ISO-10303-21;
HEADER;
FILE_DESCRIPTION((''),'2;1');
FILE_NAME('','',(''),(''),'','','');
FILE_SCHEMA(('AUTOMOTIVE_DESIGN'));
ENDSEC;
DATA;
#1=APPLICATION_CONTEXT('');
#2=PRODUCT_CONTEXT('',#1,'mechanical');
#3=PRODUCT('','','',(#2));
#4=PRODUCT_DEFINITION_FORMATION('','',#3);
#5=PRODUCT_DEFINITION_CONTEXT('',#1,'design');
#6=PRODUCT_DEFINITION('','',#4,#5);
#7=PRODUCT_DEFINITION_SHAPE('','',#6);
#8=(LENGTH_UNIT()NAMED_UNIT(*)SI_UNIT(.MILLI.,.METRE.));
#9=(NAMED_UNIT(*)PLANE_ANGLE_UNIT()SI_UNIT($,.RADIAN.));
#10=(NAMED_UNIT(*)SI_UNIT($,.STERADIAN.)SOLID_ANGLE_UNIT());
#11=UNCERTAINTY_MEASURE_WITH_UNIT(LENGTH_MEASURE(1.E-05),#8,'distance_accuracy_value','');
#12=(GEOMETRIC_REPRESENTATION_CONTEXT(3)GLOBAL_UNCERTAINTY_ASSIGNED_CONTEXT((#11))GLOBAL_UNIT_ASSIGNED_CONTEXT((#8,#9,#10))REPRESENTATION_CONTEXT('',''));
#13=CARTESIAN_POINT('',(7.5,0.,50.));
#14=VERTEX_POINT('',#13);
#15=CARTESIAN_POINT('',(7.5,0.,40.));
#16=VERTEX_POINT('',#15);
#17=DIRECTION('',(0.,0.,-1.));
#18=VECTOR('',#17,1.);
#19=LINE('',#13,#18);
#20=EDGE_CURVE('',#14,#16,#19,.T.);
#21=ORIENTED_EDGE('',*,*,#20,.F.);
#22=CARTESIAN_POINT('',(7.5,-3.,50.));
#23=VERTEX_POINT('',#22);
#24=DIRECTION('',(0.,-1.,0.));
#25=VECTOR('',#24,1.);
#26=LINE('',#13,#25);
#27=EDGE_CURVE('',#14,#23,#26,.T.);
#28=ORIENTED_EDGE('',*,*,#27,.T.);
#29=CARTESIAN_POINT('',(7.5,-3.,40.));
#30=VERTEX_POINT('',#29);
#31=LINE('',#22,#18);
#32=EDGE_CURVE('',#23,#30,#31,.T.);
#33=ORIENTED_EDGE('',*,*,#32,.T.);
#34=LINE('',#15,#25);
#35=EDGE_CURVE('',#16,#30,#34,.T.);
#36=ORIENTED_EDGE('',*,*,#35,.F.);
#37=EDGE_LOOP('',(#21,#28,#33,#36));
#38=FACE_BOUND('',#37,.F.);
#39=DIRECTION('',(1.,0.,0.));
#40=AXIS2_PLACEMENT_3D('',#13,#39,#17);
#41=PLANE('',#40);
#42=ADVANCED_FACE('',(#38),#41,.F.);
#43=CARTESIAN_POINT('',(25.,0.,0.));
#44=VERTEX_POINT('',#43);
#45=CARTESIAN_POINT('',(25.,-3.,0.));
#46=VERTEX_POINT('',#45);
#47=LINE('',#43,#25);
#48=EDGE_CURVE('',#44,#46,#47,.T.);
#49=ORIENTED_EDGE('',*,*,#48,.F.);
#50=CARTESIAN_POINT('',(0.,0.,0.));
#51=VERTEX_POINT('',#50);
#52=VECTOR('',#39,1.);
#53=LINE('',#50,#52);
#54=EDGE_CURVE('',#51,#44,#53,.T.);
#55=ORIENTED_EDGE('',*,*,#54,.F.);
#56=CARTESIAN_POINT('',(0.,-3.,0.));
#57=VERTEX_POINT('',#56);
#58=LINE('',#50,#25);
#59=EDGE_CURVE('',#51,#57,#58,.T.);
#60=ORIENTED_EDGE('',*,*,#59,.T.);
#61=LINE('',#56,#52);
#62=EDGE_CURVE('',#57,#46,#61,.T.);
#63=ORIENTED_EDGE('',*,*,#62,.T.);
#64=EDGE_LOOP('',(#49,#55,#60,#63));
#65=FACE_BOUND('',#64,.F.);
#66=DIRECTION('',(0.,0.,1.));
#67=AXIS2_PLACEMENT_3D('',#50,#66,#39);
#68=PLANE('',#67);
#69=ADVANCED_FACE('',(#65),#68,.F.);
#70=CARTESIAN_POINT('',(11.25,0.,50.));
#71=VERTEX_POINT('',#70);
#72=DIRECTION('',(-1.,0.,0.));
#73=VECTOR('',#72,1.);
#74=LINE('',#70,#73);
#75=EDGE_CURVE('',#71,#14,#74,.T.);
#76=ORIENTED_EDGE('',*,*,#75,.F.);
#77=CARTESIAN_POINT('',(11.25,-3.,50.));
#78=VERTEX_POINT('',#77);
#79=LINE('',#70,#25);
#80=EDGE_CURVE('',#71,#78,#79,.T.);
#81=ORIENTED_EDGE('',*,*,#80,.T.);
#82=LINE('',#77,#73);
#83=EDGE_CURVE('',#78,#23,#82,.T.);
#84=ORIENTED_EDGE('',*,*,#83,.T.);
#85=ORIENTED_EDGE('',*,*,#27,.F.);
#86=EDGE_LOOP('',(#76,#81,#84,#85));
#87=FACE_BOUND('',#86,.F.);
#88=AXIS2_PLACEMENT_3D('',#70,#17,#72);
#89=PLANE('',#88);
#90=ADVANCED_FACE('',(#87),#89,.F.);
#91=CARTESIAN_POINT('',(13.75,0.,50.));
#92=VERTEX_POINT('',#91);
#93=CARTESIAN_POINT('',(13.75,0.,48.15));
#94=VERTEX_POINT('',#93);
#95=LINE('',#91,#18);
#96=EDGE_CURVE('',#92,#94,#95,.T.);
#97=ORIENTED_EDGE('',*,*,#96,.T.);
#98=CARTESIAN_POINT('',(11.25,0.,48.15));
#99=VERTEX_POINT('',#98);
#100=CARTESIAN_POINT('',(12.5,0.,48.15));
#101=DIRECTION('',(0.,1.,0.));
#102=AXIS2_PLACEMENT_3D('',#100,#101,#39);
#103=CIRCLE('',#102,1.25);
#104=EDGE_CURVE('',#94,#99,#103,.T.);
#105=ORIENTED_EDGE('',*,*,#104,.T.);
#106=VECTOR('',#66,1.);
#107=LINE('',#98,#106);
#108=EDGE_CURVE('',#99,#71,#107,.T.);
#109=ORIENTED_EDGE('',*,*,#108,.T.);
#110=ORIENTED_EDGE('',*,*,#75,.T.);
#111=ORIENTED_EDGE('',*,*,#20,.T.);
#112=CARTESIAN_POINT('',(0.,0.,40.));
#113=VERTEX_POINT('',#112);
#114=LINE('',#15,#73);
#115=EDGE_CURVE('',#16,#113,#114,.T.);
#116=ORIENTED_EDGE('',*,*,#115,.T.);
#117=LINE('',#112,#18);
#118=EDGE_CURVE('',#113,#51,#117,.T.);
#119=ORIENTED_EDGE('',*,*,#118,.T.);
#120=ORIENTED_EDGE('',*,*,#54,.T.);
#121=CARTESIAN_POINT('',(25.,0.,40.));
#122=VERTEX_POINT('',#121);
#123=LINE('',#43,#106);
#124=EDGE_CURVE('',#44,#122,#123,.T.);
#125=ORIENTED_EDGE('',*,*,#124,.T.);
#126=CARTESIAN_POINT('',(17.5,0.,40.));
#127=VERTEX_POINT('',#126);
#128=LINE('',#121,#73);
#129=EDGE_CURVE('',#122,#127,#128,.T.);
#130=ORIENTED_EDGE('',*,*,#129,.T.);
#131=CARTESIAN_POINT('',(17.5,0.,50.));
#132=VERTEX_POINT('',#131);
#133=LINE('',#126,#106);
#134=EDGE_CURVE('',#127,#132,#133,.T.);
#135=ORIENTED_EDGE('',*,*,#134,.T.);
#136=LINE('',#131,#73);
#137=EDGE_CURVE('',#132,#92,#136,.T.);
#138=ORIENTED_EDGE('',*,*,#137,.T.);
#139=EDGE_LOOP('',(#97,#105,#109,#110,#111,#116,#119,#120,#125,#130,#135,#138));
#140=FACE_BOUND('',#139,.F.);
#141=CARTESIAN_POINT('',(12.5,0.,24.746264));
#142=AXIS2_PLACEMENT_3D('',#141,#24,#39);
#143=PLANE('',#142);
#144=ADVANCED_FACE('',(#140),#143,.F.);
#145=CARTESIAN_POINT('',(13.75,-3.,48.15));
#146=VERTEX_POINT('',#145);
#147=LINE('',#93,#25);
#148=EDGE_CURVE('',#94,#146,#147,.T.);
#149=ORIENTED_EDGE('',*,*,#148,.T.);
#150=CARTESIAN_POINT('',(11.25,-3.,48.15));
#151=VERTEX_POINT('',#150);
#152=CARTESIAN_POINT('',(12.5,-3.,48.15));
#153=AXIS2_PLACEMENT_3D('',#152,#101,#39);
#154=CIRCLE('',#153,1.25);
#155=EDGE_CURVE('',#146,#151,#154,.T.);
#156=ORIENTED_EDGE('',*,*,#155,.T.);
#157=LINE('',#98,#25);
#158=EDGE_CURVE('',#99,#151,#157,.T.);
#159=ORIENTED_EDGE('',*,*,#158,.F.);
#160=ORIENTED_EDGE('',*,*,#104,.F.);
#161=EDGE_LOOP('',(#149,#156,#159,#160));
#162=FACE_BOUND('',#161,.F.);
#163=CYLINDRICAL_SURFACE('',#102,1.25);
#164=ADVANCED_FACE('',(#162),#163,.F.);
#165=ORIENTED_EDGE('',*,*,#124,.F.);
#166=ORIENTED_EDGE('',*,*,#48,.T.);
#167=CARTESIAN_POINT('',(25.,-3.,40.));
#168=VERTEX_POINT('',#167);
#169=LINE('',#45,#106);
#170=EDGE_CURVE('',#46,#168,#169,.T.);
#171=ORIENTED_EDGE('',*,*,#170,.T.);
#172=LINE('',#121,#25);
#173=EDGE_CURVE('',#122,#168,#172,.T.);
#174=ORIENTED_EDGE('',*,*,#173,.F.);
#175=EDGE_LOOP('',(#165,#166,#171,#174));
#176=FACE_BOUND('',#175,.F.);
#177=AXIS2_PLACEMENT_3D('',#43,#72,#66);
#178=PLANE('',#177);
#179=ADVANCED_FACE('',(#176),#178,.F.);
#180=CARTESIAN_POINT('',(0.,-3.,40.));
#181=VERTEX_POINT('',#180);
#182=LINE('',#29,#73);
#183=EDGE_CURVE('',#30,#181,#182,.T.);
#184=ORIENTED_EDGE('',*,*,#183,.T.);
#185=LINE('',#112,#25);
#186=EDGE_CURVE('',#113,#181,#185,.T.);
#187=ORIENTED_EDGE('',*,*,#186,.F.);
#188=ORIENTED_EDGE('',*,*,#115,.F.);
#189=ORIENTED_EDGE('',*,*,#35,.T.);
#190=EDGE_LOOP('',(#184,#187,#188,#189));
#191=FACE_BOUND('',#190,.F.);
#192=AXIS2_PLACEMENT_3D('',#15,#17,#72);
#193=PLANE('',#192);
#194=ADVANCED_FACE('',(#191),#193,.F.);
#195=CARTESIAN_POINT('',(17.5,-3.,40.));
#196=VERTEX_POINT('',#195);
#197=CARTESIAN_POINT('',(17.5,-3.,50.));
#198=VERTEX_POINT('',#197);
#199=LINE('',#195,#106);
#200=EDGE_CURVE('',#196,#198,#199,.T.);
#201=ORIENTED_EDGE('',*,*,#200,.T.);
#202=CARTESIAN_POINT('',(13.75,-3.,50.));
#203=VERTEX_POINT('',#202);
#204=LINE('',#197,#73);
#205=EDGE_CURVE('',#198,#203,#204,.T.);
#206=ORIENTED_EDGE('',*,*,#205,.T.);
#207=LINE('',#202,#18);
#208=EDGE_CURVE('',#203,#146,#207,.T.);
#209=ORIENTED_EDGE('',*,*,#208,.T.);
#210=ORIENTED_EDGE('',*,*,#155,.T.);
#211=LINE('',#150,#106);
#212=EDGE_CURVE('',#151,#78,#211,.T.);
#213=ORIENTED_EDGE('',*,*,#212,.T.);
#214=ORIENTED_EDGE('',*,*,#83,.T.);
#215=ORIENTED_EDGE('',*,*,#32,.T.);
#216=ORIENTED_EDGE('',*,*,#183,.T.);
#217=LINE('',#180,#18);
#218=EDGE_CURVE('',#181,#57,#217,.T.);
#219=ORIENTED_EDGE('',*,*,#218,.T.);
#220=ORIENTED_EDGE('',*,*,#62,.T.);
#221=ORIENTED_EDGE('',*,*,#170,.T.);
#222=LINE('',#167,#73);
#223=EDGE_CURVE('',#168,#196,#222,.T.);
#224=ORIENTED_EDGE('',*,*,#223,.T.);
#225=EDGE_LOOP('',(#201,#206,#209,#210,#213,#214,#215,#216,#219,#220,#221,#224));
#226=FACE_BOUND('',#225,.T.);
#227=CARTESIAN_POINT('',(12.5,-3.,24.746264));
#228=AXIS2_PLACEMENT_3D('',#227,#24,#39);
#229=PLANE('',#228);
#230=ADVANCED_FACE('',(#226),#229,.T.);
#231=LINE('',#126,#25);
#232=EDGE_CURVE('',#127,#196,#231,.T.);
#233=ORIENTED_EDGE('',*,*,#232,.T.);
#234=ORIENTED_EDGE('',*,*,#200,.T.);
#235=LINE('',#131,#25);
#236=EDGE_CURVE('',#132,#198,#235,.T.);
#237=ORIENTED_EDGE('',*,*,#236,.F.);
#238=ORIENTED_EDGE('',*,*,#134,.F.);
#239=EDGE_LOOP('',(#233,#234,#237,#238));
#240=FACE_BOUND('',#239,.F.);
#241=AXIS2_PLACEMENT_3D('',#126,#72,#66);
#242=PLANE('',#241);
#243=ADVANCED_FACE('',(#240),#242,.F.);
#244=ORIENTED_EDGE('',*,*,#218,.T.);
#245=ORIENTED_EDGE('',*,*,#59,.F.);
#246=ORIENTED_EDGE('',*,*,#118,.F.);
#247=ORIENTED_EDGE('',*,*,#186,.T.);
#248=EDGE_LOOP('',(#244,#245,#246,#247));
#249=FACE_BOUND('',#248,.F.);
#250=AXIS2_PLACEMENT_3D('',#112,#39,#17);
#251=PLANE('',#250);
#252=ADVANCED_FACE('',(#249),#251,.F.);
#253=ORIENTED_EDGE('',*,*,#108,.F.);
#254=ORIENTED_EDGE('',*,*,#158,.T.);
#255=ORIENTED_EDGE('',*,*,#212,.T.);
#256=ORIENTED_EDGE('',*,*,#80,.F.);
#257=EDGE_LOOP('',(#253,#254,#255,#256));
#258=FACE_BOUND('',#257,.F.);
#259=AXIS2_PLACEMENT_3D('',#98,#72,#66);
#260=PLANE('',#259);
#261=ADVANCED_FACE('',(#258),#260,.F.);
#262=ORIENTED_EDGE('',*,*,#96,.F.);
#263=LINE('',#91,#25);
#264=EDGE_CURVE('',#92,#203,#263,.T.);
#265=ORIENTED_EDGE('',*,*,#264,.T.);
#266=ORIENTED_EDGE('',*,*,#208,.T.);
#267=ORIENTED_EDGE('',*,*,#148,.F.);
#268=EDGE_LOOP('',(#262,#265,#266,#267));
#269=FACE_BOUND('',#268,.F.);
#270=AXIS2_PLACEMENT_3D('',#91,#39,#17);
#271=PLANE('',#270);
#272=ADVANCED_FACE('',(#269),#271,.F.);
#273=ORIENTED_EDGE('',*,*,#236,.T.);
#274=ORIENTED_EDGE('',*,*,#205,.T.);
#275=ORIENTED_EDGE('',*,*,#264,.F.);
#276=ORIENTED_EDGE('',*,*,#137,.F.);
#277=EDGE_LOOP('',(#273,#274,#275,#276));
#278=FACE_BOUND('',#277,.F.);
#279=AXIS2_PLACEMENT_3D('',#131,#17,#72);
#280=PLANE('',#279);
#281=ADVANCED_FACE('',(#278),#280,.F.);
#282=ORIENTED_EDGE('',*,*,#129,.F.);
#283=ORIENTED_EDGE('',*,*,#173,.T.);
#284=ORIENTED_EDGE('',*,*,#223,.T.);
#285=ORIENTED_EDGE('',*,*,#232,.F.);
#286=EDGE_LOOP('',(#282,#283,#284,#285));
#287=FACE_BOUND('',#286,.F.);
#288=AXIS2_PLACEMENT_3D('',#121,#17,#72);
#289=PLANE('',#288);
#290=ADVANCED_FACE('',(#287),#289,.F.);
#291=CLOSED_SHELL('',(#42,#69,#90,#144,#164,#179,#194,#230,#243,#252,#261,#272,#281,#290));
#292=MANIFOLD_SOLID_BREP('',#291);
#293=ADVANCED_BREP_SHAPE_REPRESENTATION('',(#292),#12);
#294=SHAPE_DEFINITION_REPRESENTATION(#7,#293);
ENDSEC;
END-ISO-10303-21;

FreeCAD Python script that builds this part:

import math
import FreeCAD as App
import Part
import Sketcher
Q = App.Units.Quantity

doc = App.newDocument("Part")
params = doc.addObject("Spreadsheet::Sheet", "Params")
for row, (alias, value) in enumerate([
    ("sketch1_width", "25 mm"),
    ("sketch1_height", "40 mm"),
    ("sketch1_height2", "10 mm"),
    ("sketch1_radius", "1.25 mm"),
    ("sketch1_width2", "7.5 mm"),
    ("pad1_length", "3 mm"),
], start=1):
    params.set(f"A{row}", alias)
    params.set(f"B{row}", "=" + value)
    params.setAlias(f"B{row}", alias)

body = doc.addObject("PartDesign::Body", "Body")

sketch1 = doc.addObject("Sketcher::SketchObject", "Sketch")
body.addObject(sketch1)
sketch1.AttachmentSupport = (doc.XZ_Plane, [""])
sketch1.MapMode = "FlatFace"
sketch1.addGeometry([
    Part.LineSegment(App.Vector(0, 40, 0), App.Vector(0, 0, 0)),
    Part.LineSegment(App.Vector(0, 0, 0), App.Vector(25, 0, 0)),
    Part.LineSegment(App.Vector(25, 0, 0), App.Vector(25, 40, 0)),
    Part.LineSegment(App.Vector(25, 40, 0), App.Vector(17.5, 40, 0)),
    Part.LineSegment(App.Vector(17.5, 40, 0), App.Vector(17.5, 50, 0)),
    Part.LineSegment(App.Vector(17.5, 50, 0), App.Vector(13.75, 50, 0)),
    Part.LineSegment(App.Vector(13.75, 50, 0), App.Vector(13.75, 48.15, 0)),
    Part.ArcOfCircle(Part.Circle(App.Vector(12.5, 48.15, 0), App.Vector(0, 0, 1), 1.25), math.radians(180), math.radians(360)),
    Part.LineSegment(App.Vector(11.25, 48.15, 0), App.Vector(11.25, 50, 0)),
    Part.LineSegment(App.Vector(11.25, 50, 0), App.Vector(7.5, 50, 0)),
    Part.LineSegment(App.Vector(7.5, 50, 0), App.Vector(7.5, 40, 0)),
    Part.LineSegment(App.Vector(7.5, 40, 0), App.Vector(0, 40, 0)),
], False)
sketch1.addConstraint([
    Sketcher.Constraint("Coincident", 0, 2, 1, 1),
    Sketcher.Constraint("Coincident", 1, 2, 2, 1),
    Sketcher.Constraint("Coincident", 2, 2, 3, 1),
    Sketcher.Constraint("Coincident", 3, 2, 4, 1),
    Sketcher.Constraint("Coincident", 4, 2, 5, 1),
    Sketcher.Constraint("Coincident", 5, 2, 6, 1),
    Sketcher.Constraint("Tangent", 6, 2, 7, 2),
    Sketcher.Constraint("Tangent", 7, 1, 8, 1),
    Sketcher.Constraint("Coincident", 8, 2, 9, 1),
    Sketcher.Constraint("Coincident", 9, 2, 10, 1),
    Sketcher.Constraint("Coincident", 10, 2, 11, 1),
    Sketcher.Constraint("Coincident", 11, 2, 0, 1),
    Sketcher.Constraint("Vertical", 0),
    Sketcher.Constraint("Horizontal", 1),
    Sketcher.Constraint("Vertical", 2),
    Sketcher.Constraint("Horizontal", 3),
    Sketcher.Constraint("Vertical", 4),
    Sketcher.Constraint("Horizontal", 5),
    Sketcher.Constraint("Vertical", 6),
    Sketcher.Constraint("Vertical", 8),
    Sketcher.Constraint("Horizontal", 9),
    Sketcher.Constraint("Vertical", 10),
    Sketcher.Constraint("Horizontal", 11),
    Sketcher.Constraint("Coincident", 0, 2, -1, 1),
    Sketcher.Constraint("Horizontal", 5, 2, 8, 2),
    Sketcher.Constraint("Horizontal", 3, 2, 10, 2),
    Sketcher.Constraint("Equal", 5, 9),
    Sketcher.Constraint("Equal", 3, 11),
    Sketcher.Constraint("DistanceX", 1, 1, 1, 2, Q("25 mm")),
    Sketcher.Constraint("DistanceY", 0, 2, 0, 1, Q("40 mm")),
    Sketcher.Constraint("DistanceY", 4, 1, 4, 2, Q("10 mm")),
    Sketcher.Constraint("Radius", 7, Q("1.25 mm")),
    Sketcher.Constraint("DistanceX", 3, 2, 3, 1, Q("7.5 mm")),
    Sketcher.Constraint("DistanceY", 6, 2, 6, 1, Q("1.85 mm")),
])
sketch1.setExpression("Constraints[28]", "Params.sketch1_width")
sketch1.setExpression("Constraints[29]", "Params.sketch1_height")
sketch1.setExpression("Constraints[30]", "Params.sketch1_height2")
sketch1.setExpression("Constraints[31]", "Params.sketch1_radius")
sketch1.setExpression("Constraints[32]", "Params.sketch1_width2")
pad1 = doc.addObject("PartDesign::Pad", "Pad")
body.addObject(pad1)
pad1.Profile = sketch1
pad1.setExpression("Length", "Params.pad1_length")

doc.recompute()
